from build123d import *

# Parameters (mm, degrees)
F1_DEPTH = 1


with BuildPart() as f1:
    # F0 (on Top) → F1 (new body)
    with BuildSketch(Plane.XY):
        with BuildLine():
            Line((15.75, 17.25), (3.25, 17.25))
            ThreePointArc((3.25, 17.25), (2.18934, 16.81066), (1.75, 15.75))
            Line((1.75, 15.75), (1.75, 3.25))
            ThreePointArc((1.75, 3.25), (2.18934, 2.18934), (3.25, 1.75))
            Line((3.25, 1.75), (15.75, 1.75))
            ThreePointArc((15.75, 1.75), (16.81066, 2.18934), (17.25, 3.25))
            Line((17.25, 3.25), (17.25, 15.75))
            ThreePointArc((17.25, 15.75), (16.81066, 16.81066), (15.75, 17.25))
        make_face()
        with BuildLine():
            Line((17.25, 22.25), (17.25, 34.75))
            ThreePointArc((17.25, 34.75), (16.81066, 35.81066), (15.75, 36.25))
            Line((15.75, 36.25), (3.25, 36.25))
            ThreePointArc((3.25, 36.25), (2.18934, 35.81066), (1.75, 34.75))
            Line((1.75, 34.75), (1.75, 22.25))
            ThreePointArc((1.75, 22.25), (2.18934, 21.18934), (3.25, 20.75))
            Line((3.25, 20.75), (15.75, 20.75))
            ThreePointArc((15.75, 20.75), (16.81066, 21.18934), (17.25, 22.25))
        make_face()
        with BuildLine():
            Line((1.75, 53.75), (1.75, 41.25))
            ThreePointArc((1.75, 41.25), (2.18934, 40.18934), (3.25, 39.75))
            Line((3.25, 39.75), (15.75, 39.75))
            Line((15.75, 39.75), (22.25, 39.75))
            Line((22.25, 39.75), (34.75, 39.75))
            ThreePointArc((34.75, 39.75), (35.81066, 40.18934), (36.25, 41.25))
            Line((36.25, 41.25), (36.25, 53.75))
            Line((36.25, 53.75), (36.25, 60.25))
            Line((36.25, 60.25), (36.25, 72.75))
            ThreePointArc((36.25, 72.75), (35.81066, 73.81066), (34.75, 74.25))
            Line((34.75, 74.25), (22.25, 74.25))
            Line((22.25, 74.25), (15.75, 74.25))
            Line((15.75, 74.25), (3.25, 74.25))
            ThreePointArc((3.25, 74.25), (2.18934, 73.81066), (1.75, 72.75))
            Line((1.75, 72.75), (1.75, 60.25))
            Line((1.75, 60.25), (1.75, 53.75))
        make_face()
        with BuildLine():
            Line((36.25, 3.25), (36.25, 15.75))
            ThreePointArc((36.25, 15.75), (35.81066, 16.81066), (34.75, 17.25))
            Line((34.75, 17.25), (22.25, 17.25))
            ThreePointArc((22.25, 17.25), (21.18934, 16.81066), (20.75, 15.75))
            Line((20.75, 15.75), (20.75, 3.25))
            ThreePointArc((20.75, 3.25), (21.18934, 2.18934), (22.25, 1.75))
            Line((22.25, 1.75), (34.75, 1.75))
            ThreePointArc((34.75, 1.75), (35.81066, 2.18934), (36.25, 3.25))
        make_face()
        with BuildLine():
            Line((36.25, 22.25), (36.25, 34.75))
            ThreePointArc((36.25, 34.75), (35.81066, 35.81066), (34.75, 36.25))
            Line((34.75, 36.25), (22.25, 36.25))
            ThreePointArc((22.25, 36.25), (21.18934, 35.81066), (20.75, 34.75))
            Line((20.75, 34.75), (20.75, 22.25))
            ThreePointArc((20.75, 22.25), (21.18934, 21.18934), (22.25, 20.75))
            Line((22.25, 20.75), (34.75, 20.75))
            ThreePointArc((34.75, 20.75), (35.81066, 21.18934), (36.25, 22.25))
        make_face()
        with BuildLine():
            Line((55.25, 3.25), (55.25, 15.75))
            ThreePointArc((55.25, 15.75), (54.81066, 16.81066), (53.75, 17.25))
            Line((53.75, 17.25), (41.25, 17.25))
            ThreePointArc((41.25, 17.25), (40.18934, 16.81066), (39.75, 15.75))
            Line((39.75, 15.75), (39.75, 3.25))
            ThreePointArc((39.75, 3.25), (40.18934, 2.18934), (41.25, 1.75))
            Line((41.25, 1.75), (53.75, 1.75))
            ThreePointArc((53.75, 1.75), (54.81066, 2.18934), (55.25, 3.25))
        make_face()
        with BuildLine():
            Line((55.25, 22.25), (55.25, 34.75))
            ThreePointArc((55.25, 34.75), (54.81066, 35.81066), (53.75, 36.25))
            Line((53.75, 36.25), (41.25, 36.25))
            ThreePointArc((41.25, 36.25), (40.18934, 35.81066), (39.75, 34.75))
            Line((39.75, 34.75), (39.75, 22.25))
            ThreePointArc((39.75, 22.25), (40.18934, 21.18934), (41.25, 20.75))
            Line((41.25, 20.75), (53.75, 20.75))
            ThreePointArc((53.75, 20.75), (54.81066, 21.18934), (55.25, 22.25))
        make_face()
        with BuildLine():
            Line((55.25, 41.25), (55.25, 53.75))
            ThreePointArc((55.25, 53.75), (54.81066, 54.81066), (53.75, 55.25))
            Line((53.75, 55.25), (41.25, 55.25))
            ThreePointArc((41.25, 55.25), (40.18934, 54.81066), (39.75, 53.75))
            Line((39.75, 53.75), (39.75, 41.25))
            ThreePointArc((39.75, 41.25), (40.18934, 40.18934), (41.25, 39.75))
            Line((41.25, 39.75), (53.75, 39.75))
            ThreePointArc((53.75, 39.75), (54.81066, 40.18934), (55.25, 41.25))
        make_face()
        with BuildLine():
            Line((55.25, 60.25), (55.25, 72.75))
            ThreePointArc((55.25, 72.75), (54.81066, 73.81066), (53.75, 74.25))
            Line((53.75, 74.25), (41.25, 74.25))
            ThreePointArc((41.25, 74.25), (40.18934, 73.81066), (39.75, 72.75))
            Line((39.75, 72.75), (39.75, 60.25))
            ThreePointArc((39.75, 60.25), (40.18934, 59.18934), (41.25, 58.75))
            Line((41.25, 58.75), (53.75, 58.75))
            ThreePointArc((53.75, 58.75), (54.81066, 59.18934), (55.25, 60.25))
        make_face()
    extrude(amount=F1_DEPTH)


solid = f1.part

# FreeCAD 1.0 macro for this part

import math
import FreeCAD as App
import Part
import Sketcher

V = App.Vector

doc = App.newDocument("Part")
body = doc.addObject("PartDesign::Body", "Body")
body.AllowCompound = True

# Sketch on XY plane
sketch1 = body.newObject("Sketcher::SketchObject", "Sketch")
sketch1.AttachmentSupport = (doc.getObject("XY_Plane"), [""])
sketch1.MapMode = "FlatFace"
sketch1.addGeometry([
    Part.LineSegment(V(15.75, 17.25, 0), V(3.25, 17.25, 0)),  # 0
    Part.ArcOfCircle(Part.Circle(V(3.250001, 15.749999, 0), V(0, 0, 1), 1.500001), math.radians(90.000022), math.radians(179.999978)),  # 1
    Part.LineSegment(V(1.75, 15.75, 0), V(1.75, 3.25, 0)),  # 2
    Part.ArcOfCircle(Part.Circle(V(3.250001, 3.250001, 0), V(0, 0, 1), 1.500001), math.radians(-179.999978), math.radians(-90.000022)),  # 3
    Part.LineSegment(V(3.25, 1.75, 0), V(15.75, 1.75, 0)),  # 4
    Part.ArcOfCircle(Part.Circle(V(15.749999, 3.250001, 0), V(0, 0, 1), 1.500001), math.radians(-89.999978), math.radians(-0.000022)),  # 5
    Part.LineSegment(V(17.25, 3.25, 0), V(17.25, 15.75, 0)),  # 6
    Part.ArcOfCircle(Part.Circle(V(15.749999, 15.749999, 0), V(0, 0, 1), 1.500001), math.radians(0.000022), math.radians(89.999978)),  # 7
    Part.LineSegment(V(17.25, 22.25, 0), V(17.25, 34.75, 0)),  # 8
    Part.ArcOfCircle(Part.Circle(V(15.749999, 34.749999, 0), V(0, 0, 1), 1.500001), math.radians(0.000022), math.radians(89.999978)),  # 9
    Part.LineSegment(V(15.75, 36.25, 0), V(3.25, 36.25, 0)),  # 10
    Part.ArcOfCircle(Part.Circle(V(3.250001, 34.749999, 0), V(0, 0, 1), 1.500001), math.radians(90.000022), math.radians(179.999978)),  # 11
    Part.LineSegment(V(1.75, 34.75, 0), V(1.75, 22.25, 0)),  # 12
    Part.ArcOfCircle(Part.Circle(V(3.250001, 22.250001, 0), V(0, 0, 1), 1.500001), math.radians(-179.999978), math.radians(-90.000022)),  # 13
    Part.LineSegment(V(3.25, 20.75, 0), V(15.75, 20.75, 0)),  # 14
    Part.ArcOfCircle(Part.Circle(V(15.749999, 22.250001, 0), V(0, 0, 1), 1.500001), math.radians(-89.999978), math.radians(-0.000022)),  # 15
    Part.ArcOfCircle(Part.Circle(V(3.250001, 41.250001, 0), V(0, 0, 1), 1.500001), math.radians(-179.999978), math.radians(-90.000022)),  # 16
    Part.LineSegment(V(3.25, 39.75, 0), V(34.75, 39.75, 0)),  # 17
    Part.ArcOfCircle(Part.Circle(V(34.749999, 41.250001, 0), V(0, 0, 1), 1.500001), math.radians(-89.999978), math.radians(-0.000022)),  # 18
    Part.LineSegment(V(36.25, 41.25, 0), V(36.25, 72.75, 0)),  # 19
    Part.ArcOfCircle(Part.Circle(V(34.749999, 72.749999, 0), V(0, 0, 1), 1.500001), math.radians(0.000022), math.radians(89.999978)),  # 20
    Part.LineSegment(V(34.75, 74.25, 0), V(3.25, 74.25, 0)),  # 21
    Part.ArcOfCircle(Part.Circle(V(3.250001, 72.749999, 0), V(0, 0, 1), 1.500001), math.radians(90.000022), math.radians(179.999978)),  # 22
    Part.LineSegment(V(1.75, 72.75, 0), V(1.75, 41.25, 0)),  # 23
    Part.LineSegment(V(36.25, 3.25, 0), V(36.25, 15.75, 0)),  # 24
    Part.ArcOfCircle(Part.Circle(V(34.749999, 15.749999, 0), V(0, 0, 1), 1.500001), math.radians(0.000022), math.radians(89.999978)),  # 25
    Part.LineSegment(V(34.75, 17.25, 0), V(22.25, 17.25, 0)),  # 26
    Part.ArcOfCircle(Part.Circle(V(22.250001, 15.749999, 0), V(0, 0, 1), 1.500001), math.radians(90.000022), math.radians(179.999978)),  # 27
    Part.LineSegment(V(20.75, 15.75, 0), V(20.75, 3.25, 0)),  # 28
    Part.ArcOfCircle(Part.Circle(V(22.250001, 3.250001, 0), V(0, 0, 1), 1.500001), math.radians(-179.999978), math.radians(-90.000022)),  # 29
    Part.LineSegment(V(22.25, 1.75, 0), V(34.75, 1.75, 0)),  # 30
    Part.ArcOfCircle(Part.Circle(V(34.749999, 3.250001, 0), V(0, 0, 1), 1.500001), math.radians(-89.999978), math.radians(-0.000022)),  # 31
    Part.LineSegment(V(36.25, 22.25, 0), V(36.25, 34.75, 0)),  # 32
    Part.ArcOfCircle(Part.Circle(V(34.749999, 34.749999, 0), V(0, 0, 1), 1.500001), math.radians(0.000022), math.radians(89.999978)),  # 33
    Part.LineSegment(V(34.75, 36.25, 0), V(22.25, 36.25, 0)),  # 34
    Part.ArcOfCircle(Part.Circle(V(22.250001, 34.749999, 0), V(0, 0, 1), 1.500001), math.radians(90.000022), math.radians(179.999978)),  # 35
    Part.LineSegment(V(20.75, 34.75, 0), V(20.75, 22.25, 0)),  # 36
    Part.ArcOfCircle(Part.Circle(V(22.250001, 22.250001, 0), V(0, 0, 1), 1.500001), math.radians(-179.999978), math.radians(-90.000022)),  # 37
    Part.LineSegment(V(22.25, 20.75, 0), V(34.75, 20.75, 0)),  # 38
    Part.ArcOfCircle(Part.Circle(V(34.749999, 22.250001, 0), V(0, 0, 1), 1.500001), math.radians(-89.999978), math.radians(-0.000022)),  # 39
    Part.LineSegment(V(55.25, 3.25, 0), V(55.25, 15.75, 0)),  # 40
    Part.ArcOfCircle(Part.Circle(V(53.749999, 15.749999, 0), V(0, 0, 1), 1.500001), math.radians(0.000022), math.radians(89.999978)),  # 41
    Part.LineSegment(V(53.75, 17.25, 0), V(41.25, 17.25, 0)),  # 42
    Part.ArcOfCircle(Part.Circle(V(41.250001, 15.749999, 0), V(0, 0, 1), 1.500001), math.radians(90.000022), math.radians(179.999978)),  # 43
    Part.LineSegment(V(39.75, 15.75, 0), V(39.75, 3.25, 0)),  # 44
    Part.ArcOfCircle(Part.Circle(V(41.250001, 3.250001, 0), V(0, 0, 1), 1.500001), math.radians(-179.999978), math.radians(-90.000022)),  # 45
    Part.LineSegment(V(41.25, 1.75, 0), V(53.75, 1.75, 0)),  # 46
    Part.ArcOfCircle(Part.Circle(V(53.749999, 3.250001, 0), V(0, 0, 1), 1.500001), math.radians(-89.999978), math.radians(-0.000022)),  # 47
    Part.LineSegment(V(55.25, 22.25, 0), V(55.25, 34.75, 0)),  # 48
    Part.ArcOfCircle(Part.Circle(V(53.749999, 34.749999, 0), V(0, 0, 1), 1.500001), math.radians(0.000022), math.radians(89.999978)),  # 49
    Part.LineSegment(V(53.75, 36.25, 0), V(41.25, 36.25, 0)),  # 50
    Part.ArcOfCircle(Part.Circle(V(41.250001, 34.749999, 0), V(0, 0, 1), 1.500001), math.radians(90.000022), math.radians(179.999978)),  # 51
    Part.LineSegment(V(39.75, 34.75, 0), V(39.75, 22.25, 0)),  # 52
    Part.ArcOfCircle(Part.Circle(V(41.250001, 22.250001, 0), V(0, 0, 1), 1.500001), math.radians(-179.999978), math.radians(-90.000022)),  # 53
    Part.LineSegment(V(41.25, 20.75, 0), V(53.75, 20.75, 0)),  # 54
    Part.ArcOfCircle(Part.Circle(V(53.749999, 22.250001, 0), V(0, 0, 1), 1.500001), math.radians(-89.999978), math.radians(-0.000022)),  # 55
    Part.LineSegment(V(55.25, 41.25, 0), V(55.25, 53.75, 0)),  # 56
    Part.ArcOfCircle(Part.Circle(V(53.749999, 53.749999, 0), V(0, 0, 1), 1.500001), math.radians(0.000022), math.radians(89.999978)),  # 57
    Part.LineSegment(V(53.75, 55.25, 0), V(41.25, 55.25, 0)),  # 58
    Part.ArcOfCircle(Part.Circle(V(41.250001, 53.749999, 0), V(0, 0, 1), 1.500001), math.radians(90.000022), math.radians(179.999978)),  # 59
    Part.LineSegment(V(39.75, 53.75, 0), V(39.75, 41.25, 0)),  # 60
    Part.ArcOfCircle(Part.Circle(V(41.250001, 41.250001, 0), V(0, 0, 1), 1.500001), math.radians(-179.999978), math.radians(-90.000022)),  # 61
    Part.LineSegment(V(41.25, 39.75, 0), V(53.75, 39.75, 0)),  # 62
    Part.ArcOfCircle(Part.Circle(V(53.749999, 41.250001, 0), V(0, 0, 1), 1.500001), math.radians(-89.999978), math.radians(-0.000022)),  # 63
    Part.LineSegment(V(55.25, 60.25, 0), V(55.25, 72.75, 0)),  # 64
    Part.ArcOfCircle(Part.Circle(V(53.749999, 72.749999, 0), V(0, 0, 1), 1.500001), math.radians(0.000022), math.radians(89.999978)),  # 65
    Part.LineSegment(V(53.75, 74.25, 0), V(41.25, 74.25, 0)),  # 66
    Part.ArcOfCircle(Part.Circle(V(41.250001, 72.749999, 0), V(0, 0, 1), 1.500001), math.radians(90.000022), math.radians(179.999978)),  # 67
    Part.LineSegment(V(39.75, 72.75, 0), V(39.75, 60.25, 0)),  # 68
    Part.ArcOfCircle(Part.Circle(V(41.250001, 60.250001, 0), V(0, 0, 1), 1.500001), math.radians(-179.999978), math.radians(-90.000022)),  # 69
    Part.LineSegment(V(41.25, 58.75, 0), V(53.75, 58.75, 0)),  # 70
    Part.ArcOfCircle(Part.Circle(V(53.749999, 60.250001, 0), V(0, 0, 1), 1.500001), math.radians(-89.999978), math.radians(-0.000022)),  # 71
], False)
sketch1.addConstraint([
    Sketcher.Constraint("Tangent", 0, 2, 1, 1),
    Sketcher.Constraint("Tangent", 1, 2, 2, 1),
    Sketcher.Constraint("Tangent", 2, 2, 3, 1),
    Sketcher.Constraint("Tangent", 3, 2, 4, 1),
    Sketcher.Constraint("Tangent", 4, 2, 5, 1),
    Sketcher.Constraint("Tangent", 5, 2, 6, 1),
    Sketcher.Constraint("Tangent", 6, 2, 7, 1),
    Sketcher.Constraint("Tangent", 7, 2, 0, 1),
    Sketcher.Constraint("Tangent", 8, 2, 9, 1),
    Sketcher.Constraint("Tangent", 9, 2, 10, 1),
    Sketcher.Constraint("Tangent", 10, 2, 11, 1),
    Sketcher.Constraint("Tangent", 11, 2, 12, 1),
    Sketcher.Constraint("Tangent", 12, 2, 13, 1),
    Sketcher.Constraint("Tangent", 13, 2, 14, 1),
    Sketcher.Constraint("Tangent", 14, 2, 15, 1),
    Sketcher.Constraint("Tangent", 15, 2, 8, 1),
    Sketcher.Constraint("Tangent", 16, 2, 17, 1),
    Sketcher.Constraint("Tangent", 17, 2, 18, 1),
    Sketcher.Constraint("Tangent", 18, 2, 19, 1),
    Sketcher.Constraint("Tangent", 19, 2, 20, 1),
    Sketcher.Constraint("Tangent", 20, 2, 21, 1),
    Sketcher.Constraint("Tangent", 21, 2, 22, 1),
    Sketcher.Constraint("Tangent", 22, 2, 23, 1),
    Sketcher.Constraint("Tangent", 23, 2, 16, 1),
    Sketcher.Constraint("Tangent", 24, 2, 25, 1),
    Sketcher.Constraint("Tangent", 25, 2, 26, 1),
    Sketcher.Constraint("Tangent", 26, 2, 27, 1),
    Sketcher.Constraint("Tangent", 27, 2, 28, 1),
    Sketcher.Constraint("Tangent", 28, 2, 29, 1),
    Sketcher.Constraint("Tangent", 29, 2, 30, 1),
    Sketcher.Constraint("Tangent", 30, 2, 31, 1),
    Sketcher.Constraint("Tangent", 31, 2, 24, 1),
    Sketcher.Constraint("Tangent", 32, 2, 33, 1),
    Sketcher.Constraint("Tangent", 33, 2, 34, 1),
    Sketcher.Constraint("Tangent", 34, 2, 35, 1),
    Sketcher.Constraint("Tangent", 35, 2, 36, 1),
    Sketcher.Constraint("Tangent", 36, 2, 37, 1),
    Sketcher.Constraint("Tangent", 37, 2, 38, 1),
    Sketcher.Constraint("Tangent", 38, 2, 39, 1),
    Sketcher.Constraint("Tangent", 39, 2, 32, 1),
    Sketcher.Constraint("Tangent", 40, 2, 41, 1),
    Sketcher.Constraint("Tangent", 41, 2, 42, 1),
    Sketcher.Constraint("Tangent", 42, 2, 43, 1),
    Sketcher.Constraint("Tangent", 43, 2, 44, 1),
    Sketcher.Constraint("Tangent", 44, 2, 45, 1),
    Sketcher.Constraint("Tangent", 45, 2, 46, 1),
    Sketcher.Constraint("Tangent", 46, 2, 47, 1),
    Sketcher.Constraint("Tangent", 47, 2, 40, 1),
    Sketcher.Constraint("Tangent", 48, 2, 49, 1),
    Sketcher.Constraint("Tangent", 49, 2, 50, 1),
    Sketcher.Constraint("Tangent", 50, 2, 51, 1),
    Sketcher.Constraint("Tangent", 51, 2, 52, 1),
    Sketcher.Constraint("Tangent", 52, 2, 53, 1),
    Sketcher.Constraint("Tangent", 53, 2, 54, 1),
    Sketcher.Constraint("Tangent", 54, 2, 55, 1),
    Sketcher.Constraint("Tangent", 55, 2, 48, 1),
    Sketcher.Constraint("Tangent", 56, 2, 57, 1),
    Sketcher.Constraint("Tangent", 57, 2, 58, 1),
    Sketcher.Constraint("Tangent", 58, 2, 59, 1),
    Sketcher.Constraint("Tangent", 59, 2, 60, 1),
    Sketcher.Constraint("Tangent", 60, 2, 61, 1),
    Sketcher.Constraint("Tangent", 61, 2, 62, 1),
    Sketcher.Constraint("Tangent", 62, 2, 63, 1),
    Sketcher.Constraint("Tangent", 63, 2, 56, 1),
    Sketcher.Constraint("Tangent", 64, 2, 65, 1),
    Sketcher.Constraint("Tangent", 65, 2, 66, 1),
    Sketcher.Constraint("Tangent", 66, 2, 67, 1),
    Sketcher.Constraint("Tangent", 67, 2, 68, 1),
    Sketcher.Constraint("Tangent", 68, 2, 69, 1),
    Sketcher.Constraint("Tangent", 69, 2, 70, 1),
    Sketcher.Constraint("Tangent", 70, 2, 71, 1),
    Sketcher.Constraint("Tangent", 71, 2, 64, 1),
    Sketcher.Constraint("Horizontal", 0),
    Sketcher.Constraint("Vertical", 2),
    Sketcher.Constraint("Horizontal", 4),
    Sketcher.Constraint("Vertical", 6),
    Sketcher.Constraint("Vertical", 8),
    Sketcher.Constraint("Horizontal", 10),
    Sketcher.Constraint("Vertical", 12),
    Sketcher.Constraint("Horizontal", 14),
    Sketcher.Constraint("Horizontal", 17),
    Sketcher.Constraint("Vertical", 19),
    Sketcher.Constraint("Horizontal", 21),
    Sketcher.Constraint("Vertical", 23),
    Sketcher.Constraint("Vertical", 24),
    Sketcher.Constraint("Horizontal", 26),
    Sketcher.Constraint("Vertical", 28),
    Sketcher.Constraint("Horizontal", 30),
    Sketcher.Constraint("Vertical", 32),
    Sketcher.Constraint("Horizontal", 34),
    Sketcher.Constraint("Vertical", 36),
    Sketcher.Constraint("Horizontal", 38),
    Sketcher.Constraint("Vertical", 40),
    Sketcher.Constraint("Horizontal", 42),
    Sketcher.Constraint("Vertical", 44),
    Sketcher.Constraint("Horizontal", 46),
    Sketcher.Constraint("Vertical", 48),
    Sketcher.Constraint("Horizontal", 50),
    Sketcher.Constraint("Vertical", 52),
    Sketcher.Constraint("Horizontal", 54),
    Sketcher.Constraint("Vertical", 56),
    Sketcher.Constraint("Horizontal", 58),
    Sketcher.Constraint("Vertical", 60),
    Sketcher.Constraint("Horizontal", 62),
    Sketcher.Constraint("Vertical", 64),
    Sketcher.Constraint("Horizontal", 66),
    Sketcher.Constraint("Vertical", 68),
    Sketcher.Constraint("Horizontal", 70),
    Sketcher.Constraint("Equal", 1, 3),
    Sketcher.Constraint("Equal", 3, 5),
    Sketcher.Constraint("Equal", 5, 7),
    Sketcher.Constraint("Equal", 7, 9),
    Sketcher.Constraint("Equal", 9, 11),
    Sketcher.Constraint("Equal", 11, 13),
    Sketcher.Constraint("Equal", 13, 15),
    Sketcher.Constraint("Equal", 15, 16),
    Sketcher.Constraint("Equal", 16, 18),
    Sketcher.Constraint("Equal", 18, 20),
    Sketcher.Constraint("Equal", 20, 22),
    Sketcher.Constraint("Equal", 22, 25),
    Sketcher.Constraint("Equal", 25, 27),
    Sketcher.Constraint("Equal", 27, 29),
    Sketcher.Constraint("Equal", 29, 31),
    Sketcher.Constraint("Equal", 31, 33),
    Sketcher.Constraint("Equal", 33, 35),
    Sketcher.Constraint("Equal", 35, 37),
    Sketcher.Constraint("Equal", 37, 39),
    Sketcher.Constraint("Equal", 39, 41),
    Sketcher.Constraint("Equal", 41, 43),
    Sketcher.Constraint("Equal", 43, 45),
    Sketcher.Constraint("Equal", 45, 47),
    Sketcher.Constraint("Equal", 47, 49),
    Sketcher.Constraint("Equal", 49, 51),
    Sketcher.Constraint("Equal", 51, 53),
    Sketcher.Constraint("Equal", 53, 55),
    Sketcher.Constraint("Equal", 55, 57),
    Sketcher.Constraint("Equal", 57, 59),
    Sketcher.Constraint("Equal", 59, 61),
    Sketcher.Constraint("Equal", 61, 63),
    Sketcher.Constraint("Equal", 63, 65),
    Sketcher.Constraint("Equal", 65, 67),
    Sketcher.Constraint("Equal", 67, 69),
    Sketcher.Constraint("Equal", 69, 71),
    Sketcher.Constraint("Horizontal", 7, 3, 25, 3),
    Sketcher.Constraint("Horizontal", 5, 3, 29, 3),
    Sketcher.Constraint("Horizontal", 11, 3, 33, 3),
    Sketcher.Constraint("Horizontal", 15, 3, 37, 3),
    Sketcher.Constraint("Horizontal", 27, 3, 41, 3),
    Sketcher.Constraint("Horizontal", 31, 3, 45, 3),
    Sketcher.Constraint("Horizontal", 35, 3, 49, 3),
    Sketcher.Constraint("Horizontal", 39, 3, 53, 3),
    Sketcher.Constraint("Horizontal", 18, 3, 61, 3),
    Sketcher.Constraint("Horizontal", 22, 3, 65, 3),
    Sketcher.Constraint("Vertical", 7, 3, 9, 3),
    Sketcher.Constraint("Vertical", 3, 3, 11, 3),
    Sketcher.Constraint("Vertical", 13, 3, 16, 3),
    Sketcher.Constraint("Vertical", 20, 3, 25, 3),
    Sketcher.Constraint("Vertical", 31, 3, 33, 3),
    Sketcher.Constraint("Vertical", 29, 3, 35, 3),
    Sketcher.Constraint("Vertical", 47, 3, 49, 3),
    Sketcher.Constraint("Vertical", 45, 3, 51, 3),
    Sketcher.Constraint("Vertical", 55, 3, 57, 3),
    Sketcher.Constraint("Vertical", 53, 3, 59, 3),
    Sketcher.Constraint("Vertical", 63, 3, 65, 3),
    Sketcher.Constraint("Vertical", 61, 3, 67, 3),
    Sketcher.Constraint("Equal", 14, 26),
    Sketcher.Constraint("Equal", 38, 42),
    Sketcher.Constraint("Equal", 70, 2),
    Sketcher.Constraint("Equal", 6, 8),
    Sketcher.Constraint("Equal", 21, 19),
    Sketcher.Constraint("Equal", 52, 56),
    Sketcher.Constraint("Equal", 60, 64),
    Sketcher.Constraint("Radius", 1, 1.500001),
    Sketcher.Constraint("DistanceX", 0, 2, 0, 1, 12.5),
    Sketcher.Constraint("DistanceX", 17, 1, 17, 2, 31.5),
    Sketcher.Constraint("DistanceX", -1, 1, 1, 3, 3.250001),
    Sketcher.Constraint("DistanceY", -1, 1, 1, 3, 15.749999),
    Sketcher.Constraint("DistanceY", -1, 1, 9, 3, 34.749999),
    Sketcher.Constraint("DistanceY", -1, 1, 16, 3, 41.250001),
    Sketcher.Constraint("DistanceX", -1, 1, 41, 3, 53.749999),
])
pad1 = body.newObject("PartDesign::Pad", "Pad")
pad1.Profile = sketch1
pad1.Length = 1

doc.recompute()
